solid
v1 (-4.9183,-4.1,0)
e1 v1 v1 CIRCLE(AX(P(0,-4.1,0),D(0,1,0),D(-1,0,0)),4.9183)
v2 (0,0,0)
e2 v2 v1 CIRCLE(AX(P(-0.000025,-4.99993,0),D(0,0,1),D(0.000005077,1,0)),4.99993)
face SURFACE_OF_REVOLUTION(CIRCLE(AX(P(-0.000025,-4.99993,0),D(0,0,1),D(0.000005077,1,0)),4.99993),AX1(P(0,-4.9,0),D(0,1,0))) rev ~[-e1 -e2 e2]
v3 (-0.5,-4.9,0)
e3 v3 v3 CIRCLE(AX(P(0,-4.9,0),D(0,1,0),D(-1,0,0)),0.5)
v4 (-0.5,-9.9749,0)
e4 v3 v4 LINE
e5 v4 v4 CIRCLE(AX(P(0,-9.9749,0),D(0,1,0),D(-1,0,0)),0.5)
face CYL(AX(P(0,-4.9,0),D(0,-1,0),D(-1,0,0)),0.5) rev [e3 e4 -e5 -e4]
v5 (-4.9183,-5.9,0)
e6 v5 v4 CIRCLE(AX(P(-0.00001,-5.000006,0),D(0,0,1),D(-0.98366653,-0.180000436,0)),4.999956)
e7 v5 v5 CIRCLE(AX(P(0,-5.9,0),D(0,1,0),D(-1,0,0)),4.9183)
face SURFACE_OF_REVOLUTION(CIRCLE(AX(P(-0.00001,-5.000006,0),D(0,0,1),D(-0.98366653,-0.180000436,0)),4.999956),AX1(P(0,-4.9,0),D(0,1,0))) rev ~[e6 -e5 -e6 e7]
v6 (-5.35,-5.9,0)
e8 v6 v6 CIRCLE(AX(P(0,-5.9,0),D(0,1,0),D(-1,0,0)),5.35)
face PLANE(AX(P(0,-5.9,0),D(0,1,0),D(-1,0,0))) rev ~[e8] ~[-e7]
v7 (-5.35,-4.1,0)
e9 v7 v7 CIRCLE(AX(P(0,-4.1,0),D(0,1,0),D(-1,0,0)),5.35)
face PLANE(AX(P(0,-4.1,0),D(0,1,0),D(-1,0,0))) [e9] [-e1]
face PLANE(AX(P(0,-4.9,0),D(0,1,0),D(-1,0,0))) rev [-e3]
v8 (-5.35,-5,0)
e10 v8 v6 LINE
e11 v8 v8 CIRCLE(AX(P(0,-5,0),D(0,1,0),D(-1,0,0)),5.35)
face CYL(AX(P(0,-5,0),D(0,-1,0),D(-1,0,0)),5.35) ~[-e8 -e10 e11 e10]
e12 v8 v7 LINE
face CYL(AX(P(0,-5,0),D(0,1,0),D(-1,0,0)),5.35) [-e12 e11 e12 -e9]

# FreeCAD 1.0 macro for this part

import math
import FreeCAD as App
import Part
import Sketcher

V = App.Vector
Q = App.Units.Quantity

doc = App.newDocument("Part")
body = doc.addObject("PartDesign::Body", "Body")

# Sketch on XY plane
sketch1 = body.newObject("Sketcher::SketchObject", "Sketch")
sketch1.AttachmentSupport = (doc.getObject("XY_Plane"), [""])
sketch1.MapMode = "FlatFace"
sketch1.addGeometry([
    Part.LineSegment(V(-5.35, -4.1, 0), V(-5.35, -5.9, 0)),  # 0
    Part.LineSegment(V(-5.35, -5.9, 0), V(-4.92, -5.9, 0)),  # 1
    Part.ArcOfCircle(Part.Circle(V(0, -5, 0), V(0, 0, 1), 5), math.radians(-170), math.radians(-96)),  # 2
    Part.LineSegment(V(-0.5, -9.97, 0), V(-0.5, -4.9, 0)),  # 3
    Part.LineSegment(V(-0.5, -4.9, 0), V(0, -4.9, 0)),  # 4
    Part.LineSegment(V(0, -4.9, 0), V(0, 0, 0)),  # 5
    Part.ArcOfCircle(Part.Circle(V(0, -5, 0), V(0, 0, 1), 5), math.radians(90), math.radians(170)),  # 6
    Part.LineSegment(V(-4.92, -4.1, 0), V(-5.35, -4.1, 0)),  # 7
], False)
sketch1.addConstraint([
    Sketcher.Constraint("Coincident", 0, 2, 1, 1),
    Sketcher.Constraint("Coincident", 1, 2, 2, 1),
    Sketcher.Constraint("Coincident", 2, 2, 3, 1),
    Sketcher.Constraint("Coincident", 3, 2, 4, 1),
    Sketcher.Constraint("Coincident", 4, 2, 5, 1),
    Sketcher.Constraint("Coincident", 5, 2, 6, 1),
    Sketcher.Constraint("Coincident", 6, 2, 7, 1),
    Sketcher.Constraint("Coincident", 7, 2, 0, 1),
    Sketcher.Constraint("Vertical", 0),
    Sketcher.Constraint("Horizontal", 1),
    Sketcher.Constraint("Vertical", 3),
    Sketcher.Constraint("Horizontal", 4),
    Sketcher.Constraint("Vertical", 5),
    Sketcher.Constraint("Horizontal", 7),
    Sketcher.Constraint("Coincident", 5, 2, -1, 1),
    Sketcher.Constraint("Coincident", 6, 3, 2, 3),
    Sketcher.Constraint("Equal", 2, 6),
    Sketcher.Constraint("PointOnObject", 2, 3, -2),
    Sketcher.Constraint("Vertical", 1, 2, 6, 2),
    Sketcher.Constraint("Radius", 2, Q("5 mm")),
    Sketcher.Constraint("DistanceX", 4, 1, 4, 2, Q("0.5 mm")),
    Sketcher.Constraint("DistanceY", 0, 2, 0, 1, Q("1.8 mm")),
    Sketcher.Constraint("DistanceY", 5, 1, 5, 2, Q("4.9 mm")),
    Sketcher.Constraint("DistanceX", 0, 2, -1, 1, Q("5.35 mm")),
])
revolution = body.newObject("PartDesign::Revolution", "Revolution")
revolution.Profile = sketch1
revolution.ReferenceAxis = (sketch1, ["V_Axis"])
revolution.Angle = 360

doc.recompute()
